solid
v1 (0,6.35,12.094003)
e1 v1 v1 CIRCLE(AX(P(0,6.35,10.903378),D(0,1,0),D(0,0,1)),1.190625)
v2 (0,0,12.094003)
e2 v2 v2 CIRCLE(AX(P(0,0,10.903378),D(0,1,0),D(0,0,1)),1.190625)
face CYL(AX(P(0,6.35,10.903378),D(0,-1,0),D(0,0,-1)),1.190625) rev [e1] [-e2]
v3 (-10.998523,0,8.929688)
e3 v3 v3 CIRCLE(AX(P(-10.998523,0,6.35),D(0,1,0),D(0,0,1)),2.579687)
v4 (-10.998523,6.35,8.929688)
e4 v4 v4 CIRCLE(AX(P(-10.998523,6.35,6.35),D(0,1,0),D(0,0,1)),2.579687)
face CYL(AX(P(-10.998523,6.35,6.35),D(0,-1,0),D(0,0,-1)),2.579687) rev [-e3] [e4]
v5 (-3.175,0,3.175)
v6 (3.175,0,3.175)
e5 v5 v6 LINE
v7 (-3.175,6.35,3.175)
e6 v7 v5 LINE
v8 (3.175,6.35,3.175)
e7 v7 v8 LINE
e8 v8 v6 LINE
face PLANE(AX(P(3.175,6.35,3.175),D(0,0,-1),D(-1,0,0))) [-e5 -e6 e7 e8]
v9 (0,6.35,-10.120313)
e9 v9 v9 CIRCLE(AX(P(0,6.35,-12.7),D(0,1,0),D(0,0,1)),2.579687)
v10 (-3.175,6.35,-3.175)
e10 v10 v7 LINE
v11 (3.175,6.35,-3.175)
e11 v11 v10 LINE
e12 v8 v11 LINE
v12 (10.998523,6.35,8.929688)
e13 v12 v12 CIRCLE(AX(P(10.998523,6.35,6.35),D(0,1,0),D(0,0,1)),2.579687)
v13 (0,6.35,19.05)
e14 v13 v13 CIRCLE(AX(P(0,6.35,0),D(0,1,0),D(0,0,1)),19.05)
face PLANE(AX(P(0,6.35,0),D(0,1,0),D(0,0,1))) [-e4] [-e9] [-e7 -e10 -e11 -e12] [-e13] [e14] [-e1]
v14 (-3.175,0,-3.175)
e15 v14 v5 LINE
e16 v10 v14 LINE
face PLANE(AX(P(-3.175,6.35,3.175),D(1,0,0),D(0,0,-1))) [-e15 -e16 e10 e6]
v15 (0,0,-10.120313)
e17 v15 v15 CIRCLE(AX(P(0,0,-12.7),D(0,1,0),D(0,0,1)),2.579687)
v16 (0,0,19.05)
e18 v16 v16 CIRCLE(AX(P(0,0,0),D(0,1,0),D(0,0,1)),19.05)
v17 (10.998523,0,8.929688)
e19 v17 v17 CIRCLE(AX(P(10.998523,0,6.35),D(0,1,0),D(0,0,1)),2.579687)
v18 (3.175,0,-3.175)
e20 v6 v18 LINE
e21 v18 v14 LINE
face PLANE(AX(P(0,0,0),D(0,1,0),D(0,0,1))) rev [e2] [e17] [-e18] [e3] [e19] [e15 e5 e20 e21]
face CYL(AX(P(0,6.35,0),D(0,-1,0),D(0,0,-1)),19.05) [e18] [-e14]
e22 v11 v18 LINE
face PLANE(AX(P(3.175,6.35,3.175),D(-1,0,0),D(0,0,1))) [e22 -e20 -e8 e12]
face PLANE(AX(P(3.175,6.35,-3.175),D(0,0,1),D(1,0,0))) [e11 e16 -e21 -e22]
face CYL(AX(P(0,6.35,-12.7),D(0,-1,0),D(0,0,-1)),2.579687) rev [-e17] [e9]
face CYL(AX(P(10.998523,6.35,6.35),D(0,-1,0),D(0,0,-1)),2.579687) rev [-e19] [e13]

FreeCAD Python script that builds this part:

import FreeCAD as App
import Part
import Sketcher
from FreeCAD import Vector
Q = App.Units.Quantity


def add_polygon(sketch, points):
    """Adds a closed chain of lines whose ends are joined by coincident constraints."""
    first, n = sketch.GeometryCount, len(points)
    for a, b in zip(points, points[1:] + points[:1]):
        sketch.addGeometry(Part.LineSegment(App.Vector(*a, 0), App.Vector(*b, 0)), False)
    for i in range(n):
        sketch.addConstraint(Sketcher.Constraint("Coincident", first + i, 2, first + (i + 1) % n, 1))

doc = App.newDocument("Part")
body = doc.addObject("PartDesign::Body", "Body")

# Sketch on XZ plane
sketch1 = body.newObject("Sketcher::SketchObject", "Sketch")
sketch1.AttachmentSupport = (doc.getObject("XZ_Plane"), [""])
sketch1.MapMode = "FlatFace"
sketch1.addGeometry(Part.Circle(Vector(0, 0, 0), Vector(0, 0, 1), 19.1), False)  # 0
sketch1.addGeometry(Part.Circle(Vector(-11, 6.3, 0), Vector(0, 0, 1), 2.6), False)  # 1
sketch1.addGeometry(Part.Circle(Vector(0, 10.9, 0), Vector(0, 0, 1), 1.2), False)  # 2
sketch1.addGeometry(Part.Circle(Vector(11, 6.3, 0), Vector(0, 0, 1), 2.6), False)  # 3
add_polygon(sketch1, [(3.2, 3.2), (-3.2, 3.2), (-3.2, -3.2), (3.2, -3.2)])  # lines 4-7
sketch1.addGeometry(Part.Circle(Vector(0, -12.7, 0), Vector(0, 0, 1), 2.6), False)  # 8
sketch1.addConstraint([
    Sketcher.Constraint("Horizontal", 4),
    Sketcher.Constraint("Vertical", 5),
    Sketcher.Constraint("Horizontal", 6),
    Sketcher.Constraint("Vertical", 7),
    Sketcher.Constraint("Coincident", 0, 3, -1, 1),
    Sketcher.Constraint("Equal", 1, 3),
    Sketcher.Constraint("Equal", 3, 8),
    Sketcher.Constraint("Symmetric", 4, 2, 6, 2, -1, 1),
    Sketcher.Constraint("Symmetric", 1, 3, 3, 3, -2),
    Sketcher.Constraint("PointOnObject", 2, 3, -2),
    Sketcher.Constraint("PointOnObject", 8, 3, -2),
    Sketcher.Constraint("Equal", 6, 5),
    Sketcher.Constraint("Diameter", 0, Q("1.5 in")),
    Sketcher.Constraint("Diameter", 1, Q("0.203125 in")),
    Sketcher.Constraint("Diameter", 2, Q("0.09375 in")),
    Sketcher.Constraint("DistanceX", 4, 2, 4, 1, Q("0.25 in")),
    Sketcher.Constraint("DistanceY", 8, 3, -1, 1, Q("0.5 in")),
    Sketcher.Constraint("DistanceY", -1, 1, 1, 3, Q("0.25 in")),
    Sketcher.Constraint("DistanceY", -1, 1, 2, 3, Q("10.903378 mm")),
    Sketcher.Constraint("DistanceX", 1, 3, -1, 1, Q("10.998523 mm")),
])
pad1 = body.newObject("PartDesign::Pad", "Pad")
pad1.Profile = sketch1
pad1.Length = Q("0.25 in")
pad1.Reversed = True

doc.recompute()
